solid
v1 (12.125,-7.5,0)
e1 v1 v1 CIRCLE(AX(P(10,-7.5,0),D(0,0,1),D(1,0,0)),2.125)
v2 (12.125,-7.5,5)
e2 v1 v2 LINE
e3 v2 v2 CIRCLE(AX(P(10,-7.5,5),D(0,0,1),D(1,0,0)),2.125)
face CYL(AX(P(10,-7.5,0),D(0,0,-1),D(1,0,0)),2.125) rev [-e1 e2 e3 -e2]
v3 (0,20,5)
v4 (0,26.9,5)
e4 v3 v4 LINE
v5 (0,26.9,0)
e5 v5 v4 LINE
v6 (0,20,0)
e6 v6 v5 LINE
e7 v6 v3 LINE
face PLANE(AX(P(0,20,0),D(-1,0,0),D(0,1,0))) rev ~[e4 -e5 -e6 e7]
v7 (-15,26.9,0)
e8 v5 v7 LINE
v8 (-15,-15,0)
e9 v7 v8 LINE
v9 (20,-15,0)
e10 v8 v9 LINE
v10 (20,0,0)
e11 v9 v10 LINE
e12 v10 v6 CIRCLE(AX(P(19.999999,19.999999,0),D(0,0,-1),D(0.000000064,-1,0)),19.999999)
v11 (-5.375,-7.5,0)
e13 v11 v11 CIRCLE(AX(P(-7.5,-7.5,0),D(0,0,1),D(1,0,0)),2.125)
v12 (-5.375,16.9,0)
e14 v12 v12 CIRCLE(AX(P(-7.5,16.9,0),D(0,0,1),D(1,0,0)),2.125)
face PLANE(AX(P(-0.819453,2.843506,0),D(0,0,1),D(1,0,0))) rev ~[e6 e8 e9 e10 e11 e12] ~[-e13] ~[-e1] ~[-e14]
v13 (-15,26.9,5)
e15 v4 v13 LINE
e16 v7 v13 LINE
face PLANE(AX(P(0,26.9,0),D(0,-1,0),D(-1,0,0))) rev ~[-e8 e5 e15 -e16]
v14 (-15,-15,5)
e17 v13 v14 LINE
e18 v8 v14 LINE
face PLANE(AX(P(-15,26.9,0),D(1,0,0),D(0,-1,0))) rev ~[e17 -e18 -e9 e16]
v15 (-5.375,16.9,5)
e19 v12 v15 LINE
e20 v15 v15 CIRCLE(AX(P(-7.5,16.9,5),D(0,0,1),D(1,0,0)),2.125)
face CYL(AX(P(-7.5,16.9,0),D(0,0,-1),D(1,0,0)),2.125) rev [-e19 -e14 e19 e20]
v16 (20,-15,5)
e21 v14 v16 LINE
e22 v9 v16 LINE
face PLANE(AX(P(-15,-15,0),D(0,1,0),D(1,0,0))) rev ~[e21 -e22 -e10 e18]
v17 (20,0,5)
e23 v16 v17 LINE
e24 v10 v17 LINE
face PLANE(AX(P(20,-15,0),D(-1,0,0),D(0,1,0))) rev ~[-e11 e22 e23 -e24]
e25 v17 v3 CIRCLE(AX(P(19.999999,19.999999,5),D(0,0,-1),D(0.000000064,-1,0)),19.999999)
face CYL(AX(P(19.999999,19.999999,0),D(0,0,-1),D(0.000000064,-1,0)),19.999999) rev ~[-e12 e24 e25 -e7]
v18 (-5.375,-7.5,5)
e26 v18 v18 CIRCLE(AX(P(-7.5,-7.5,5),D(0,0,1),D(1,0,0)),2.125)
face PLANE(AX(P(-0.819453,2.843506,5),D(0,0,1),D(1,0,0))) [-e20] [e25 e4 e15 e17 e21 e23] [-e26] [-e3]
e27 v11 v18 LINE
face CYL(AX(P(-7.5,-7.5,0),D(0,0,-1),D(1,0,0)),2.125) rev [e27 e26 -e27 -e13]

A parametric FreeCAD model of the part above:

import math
import FreeCAD as App
import Part
import Sketcher

doc = App.newDocument("Part")
body = doc.addObject("PartDesign::Body", "Body")

# Sketch on XY plane
sketch1 = body.newObject("Sketcher::SketchObject", "Sketch")
sketch1.AttachmentSupport = (doc.getObject("XY_Plane"), [""])
sketch1.MapMode = "FlatFace"
sketch1.addGeometry(Part.LineSegment(App.Vector(0, 26.9, 0), App.Vector(-15, 26.9, 0)), False)
sketch1.addGeometry(Part.LineSegment(App.Vector(-15, 26.9, 0), App.Vector(-15, -15, 0)), False)
sketch1.addGeometry(Part.LineSegment(App.Vector(-15, -15, 0), App.Vector(20, -15, 0)), False)
sketch1.addGeometry(Part.LineSegment(App.Vector(20, -15, 0), App.Vector(20, 0, 0)), False)
sketch1.addGeometry(Part.ArcOfCircle(Part.Circle(App.Vector(20, 20, 0), App.Vector(0, 0, 1), 20), math.radians(180), math.radians(270)), False)
sketch1.addGeometry(Part.LineSegment(App.Vector(0, 20, 0), App.Vector(0, 26.9, 0)), False)
sketch1.addGeometry(Part.Circle(App.Vector(-7.5, -7.5, 0), App.Vector(0, 0, 1), 2.1), False)
sketch1.addGeometry(Part.Circle(App.Vector(10, -7.5, 0), App.Vector(0, 0, 1), 2.1), False)
sketch1.addGeometry(Part.Circle(App.Vector(-7.5, 16.9, 0), App.Vector(0, 0, 1), 2.1), False)
sketch1.addConstraint(Sketcher.Constraint("Coincident", 0, 2, 1, 1))
sketch1.addConstraint(Sketcher.Constraint("Coincident", 1, 2, 2, 1))
sketch1.addConstraint(Sketcher.Constraint("Coincident", 2, 2, 3, 1))
sketch1.addConstraint(Sketcher.Constraint("Coincident", 3, 2, 4, 2))
sketch1.addConstraint(Sketcher.Constraint("Tangent", 4, 1, 5, 1))
sketch1.addConstraint(Sketcher.Constraint("Coincident", 5, 2, 0, 1))
sketch1.addConstraint(Sketcher.Constraint("Horizontal", 0))
sketch1.addConstraint(Sketcher.Constraint("Vertical", 1))
sketch1.addConstraint(Sketcher.Constraint("Horizontal", 2))
sketch1.addConstraint(Sketcher.Constraint("Vertical", 3))
sketch1.addConstraint(Sketcher.Constraint("Vertical", 5))
sketch1.addConstraint(Sketcher.Constraint("Equal", 6, 7))
sketch1.addConstraint(Sketcher.Constraint("Equal", 7, 8))
sketch1.addConstraint(Sketcher.Constraint("PointOnObject", 3, 2, -1))
sketch1.addConstraint(Sketcher.Constraint("PointOnObject", 4, 1, -2))
sketch1.addConstraint(Sketcher.Constraint("Horizontal", 6, 3, 7, 3))
sketch1.addConstraint(Sketcher.Constraint("Vertical", 6, 3, 8, 3))
sketch1.addConstraint(Sketcher.Constraint("Vertical", 4, 3, 2, 2))
sketch1.addConstraint(Sketcher.Constraint("Equal", 0, 3))
sketch1.addConstraint(Sketcher.Constraint("Radius", 4, 19.999999))
sketch1.addConstraint(Sketcher.Constraint("Diameter", 6, 4.25))
sketch1.addConstraint(Sketcher.Constraint("DistanceX", 0, 2, 0, 1, 15.0))
sketch1.addConstraint(Sketcher.Constraint("DistanceY", 1, 2, 1, 1, 41.9))
sketch1.addConstraint(Sketcher.Constraint("DistanceX", -1, 1, 7, 3, 10.0))
sketch1.addConstraint(Sketcher.Constraint("DistanceY", 8, 3, 0, 2, 10.0))
sketch1.addConstraint(Sketcher.Constraint("DistanceX", 6, 3, -1, 1, 7.5))
sketch1.addConstraint(Sketcher.Constraint("DistanceY", 6, 3, -1, 1, 7.5))
pad1 = body.newObject("PartDesign::Pad", "Pad")
pad1.Profile = sketch1
pad1.Length = 5

doc.recompute()
